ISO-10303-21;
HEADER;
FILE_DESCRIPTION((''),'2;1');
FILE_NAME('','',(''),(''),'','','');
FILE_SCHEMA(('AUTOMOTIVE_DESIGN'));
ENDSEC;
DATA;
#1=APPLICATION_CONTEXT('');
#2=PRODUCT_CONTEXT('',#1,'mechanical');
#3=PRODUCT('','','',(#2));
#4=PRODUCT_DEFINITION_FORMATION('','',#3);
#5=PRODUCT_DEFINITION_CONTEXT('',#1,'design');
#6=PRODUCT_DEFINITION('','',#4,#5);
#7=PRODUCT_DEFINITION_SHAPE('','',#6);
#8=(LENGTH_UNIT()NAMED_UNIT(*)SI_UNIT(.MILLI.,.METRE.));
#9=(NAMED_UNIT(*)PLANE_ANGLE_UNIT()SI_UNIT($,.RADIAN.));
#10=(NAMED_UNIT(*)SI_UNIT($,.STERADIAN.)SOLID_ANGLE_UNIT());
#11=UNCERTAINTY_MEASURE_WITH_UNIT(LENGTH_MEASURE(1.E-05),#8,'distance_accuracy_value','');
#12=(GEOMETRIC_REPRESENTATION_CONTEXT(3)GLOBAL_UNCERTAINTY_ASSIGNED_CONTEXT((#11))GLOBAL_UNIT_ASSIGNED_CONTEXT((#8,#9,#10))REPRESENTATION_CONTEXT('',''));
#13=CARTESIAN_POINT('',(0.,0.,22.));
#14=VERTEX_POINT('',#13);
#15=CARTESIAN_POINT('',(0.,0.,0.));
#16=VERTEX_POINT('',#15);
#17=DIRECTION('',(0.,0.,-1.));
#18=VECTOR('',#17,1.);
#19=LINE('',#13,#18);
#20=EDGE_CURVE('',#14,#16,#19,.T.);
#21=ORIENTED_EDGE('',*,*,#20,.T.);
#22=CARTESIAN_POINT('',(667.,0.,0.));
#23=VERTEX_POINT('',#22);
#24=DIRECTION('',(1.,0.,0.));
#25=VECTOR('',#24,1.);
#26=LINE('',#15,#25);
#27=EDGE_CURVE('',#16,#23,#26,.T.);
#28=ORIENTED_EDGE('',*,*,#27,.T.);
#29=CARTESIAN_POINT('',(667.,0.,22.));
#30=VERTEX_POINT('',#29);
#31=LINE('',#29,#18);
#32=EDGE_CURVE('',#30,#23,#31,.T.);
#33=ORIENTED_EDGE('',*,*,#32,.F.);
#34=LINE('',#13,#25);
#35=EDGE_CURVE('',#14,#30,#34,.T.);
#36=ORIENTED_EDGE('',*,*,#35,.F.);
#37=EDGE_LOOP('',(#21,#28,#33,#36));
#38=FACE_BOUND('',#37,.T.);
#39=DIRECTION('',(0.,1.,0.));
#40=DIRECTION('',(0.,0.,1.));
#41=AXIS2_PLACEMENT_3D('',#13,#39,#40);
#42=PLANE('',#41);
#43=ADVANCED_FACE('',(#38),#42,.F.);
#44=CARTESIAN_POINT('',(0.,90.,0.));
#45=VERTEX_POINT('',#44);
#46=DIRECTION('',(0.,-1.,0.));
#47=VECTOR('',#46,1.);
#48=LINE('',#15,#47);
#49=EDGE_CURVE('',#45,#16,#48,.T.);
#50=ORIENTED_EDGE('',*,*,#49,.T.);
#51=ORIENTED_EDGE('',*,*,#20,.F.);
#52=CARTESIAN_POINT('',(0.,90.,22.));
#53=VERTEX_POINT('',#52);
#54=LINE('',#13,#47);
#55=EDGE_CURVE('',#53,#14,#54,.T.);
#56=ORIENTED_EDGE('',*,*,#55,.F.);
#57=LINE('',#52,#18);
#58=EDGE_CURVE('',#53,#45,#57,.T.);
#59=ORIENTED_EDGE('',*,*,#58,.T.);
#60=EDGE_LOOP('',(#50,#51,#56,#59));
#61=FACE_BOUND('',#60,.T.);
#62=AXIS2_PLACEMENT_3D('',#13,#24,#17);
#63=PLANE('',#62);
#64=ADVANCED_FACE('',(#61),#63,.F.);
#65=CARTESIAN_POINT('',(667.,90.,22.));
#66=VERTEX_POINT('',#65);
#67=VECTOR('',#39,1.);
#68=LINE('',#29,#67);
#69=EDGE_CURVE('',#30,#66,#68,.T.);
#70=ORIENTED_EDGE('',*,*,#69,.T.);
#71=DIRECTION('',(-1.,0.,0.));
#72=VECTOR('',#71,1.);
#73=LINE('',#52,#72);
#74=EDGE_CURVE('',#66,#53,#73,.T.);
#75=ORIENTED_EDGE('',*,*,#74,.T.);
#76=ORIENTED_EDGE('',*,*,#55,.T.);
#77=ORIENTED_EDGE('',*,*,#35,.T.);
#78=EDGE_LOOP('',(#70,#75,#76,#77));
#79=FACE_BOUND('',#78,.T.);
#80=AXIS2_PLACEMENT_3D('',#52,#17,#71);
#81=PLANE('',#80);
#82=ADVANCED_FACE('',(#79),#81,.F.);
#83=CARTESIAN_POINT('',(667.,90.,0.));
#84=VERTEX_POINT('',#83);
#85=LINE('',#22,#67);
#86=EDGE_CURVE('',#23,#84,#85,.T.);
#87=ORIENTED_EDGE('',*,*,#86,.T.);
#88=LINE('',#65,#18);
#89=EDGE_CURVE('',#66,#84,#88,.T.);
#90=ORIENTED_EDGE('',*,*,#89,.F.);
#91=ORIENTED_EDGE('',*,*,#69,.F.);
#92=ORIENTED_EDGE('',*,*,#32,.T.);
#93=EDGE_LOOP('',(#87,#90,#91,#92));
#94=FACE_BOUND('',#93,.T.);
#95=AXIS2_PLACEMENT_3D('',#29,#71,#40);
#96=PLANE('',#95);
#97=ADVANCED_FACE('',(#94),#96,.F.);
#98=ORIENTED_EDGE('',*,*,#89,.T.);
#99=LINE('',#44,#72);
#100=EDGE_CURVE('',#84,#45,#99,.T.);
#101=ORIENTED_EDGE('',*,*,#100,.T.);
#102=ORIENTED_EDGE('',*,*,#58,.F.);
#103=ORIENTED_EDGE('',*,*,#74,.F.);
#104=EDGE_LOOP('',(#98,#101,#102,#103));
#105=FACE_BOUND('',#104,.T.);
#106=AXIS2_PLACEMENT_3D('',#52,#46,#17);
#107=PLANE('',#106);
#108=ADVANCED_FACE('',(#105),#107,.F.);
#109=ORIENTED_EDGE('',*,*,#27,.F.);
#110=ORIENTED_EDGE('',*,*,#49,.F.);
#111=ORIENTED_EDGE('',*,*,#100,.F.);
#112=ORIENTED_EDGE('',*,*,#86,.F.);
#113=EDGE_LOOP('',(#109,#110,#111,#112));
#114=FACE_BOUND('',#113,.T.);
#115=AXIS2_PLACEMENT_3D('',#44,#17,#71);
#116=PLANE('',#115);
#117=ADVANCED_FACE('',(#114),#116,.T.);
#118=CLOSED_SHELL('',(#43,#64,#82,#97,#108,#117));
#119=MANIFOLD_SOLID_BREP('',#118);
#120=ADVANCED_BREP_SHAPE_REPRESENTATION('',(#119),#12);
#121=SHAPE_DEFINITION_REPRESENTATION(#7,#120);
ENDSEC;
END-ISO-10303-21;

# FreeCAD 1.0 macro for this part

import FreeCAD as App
import Part
import Sketcher
from FreeCAD import Vector
Q = App.Units.Quantity


def add_polygon(sketch, points):
    """Adds a closed chain of lines whose ends are joined by coincident constraints."""
    first, n = sketch.GeometryCount, len(points)
    for a, b in zip(points, points[1:] + points[:1]):
        sketch.addGeometry(Part.LineSegment(App.Vector(*a, 0), App.Vector(*b, 0)), False)
    for i in range(n):
        sketch.addConstraint(Sketcher.Constraint("Coincident", first + i, 2, first + (i + 1) % n, 1))

doc = App.newDocument("Part")
params = doc.addObject("Spreadsheet::Sheet", "Params")
for row, (alias, value) in enumerate([
    ("sketch1_width", "667 mm"),
    ("sketch1_height", "90 mm"),
    ("pad1_length", "22 mm"),
], start=1):
    params.set(f"A{row}", alias)
    params.set(f"B{row}", "=" + value)
    params.setAlias(f"B{row}", alias)

body = doc.addObject("PartDesign::Body", "Body")

# Sketch on XY plane
sketch1 = body.newObject("Sketcher::SketchObject", "Sketch")
sketch1.AttachmentSupport = (doc.getObject("XY_Plane"), [""])
sketch1.MapMode = "FlatFace"
add_polygon(sketch1, [(0, 90), (0, 0), (667, 0), (667, 90)])  # lines 0-3
sketch1.addConstraint([
    Sketcher.Constraint("Vertical", 0),
    Sketcher.Constraint("Horizontal", 1),
    Sketcher.Constraint("Vertical", 2),
    Sketcher.Constraint("Horizontal", 3),
    Sketcher.Constraint("Coincident", 0, 2, -1, 1),
    Sketcher.Constraint("DistanceX", 1, 1, 1, 2, Q("667 mm")),
    Sketcher.Constraint("DistanceY", 0, 2, 0, 1, Q("90 mm")),
])
sketch1.setExpression("Constraints[9]", "Params.sketch1_width")
sketch1.setExpression("Constraints[10]", "Params.sketch1_height")
pad1 = body.newObject("PartDesign::Pad", "Pad")
pad1.Profile = sketch1
pad1.setExpression("Length", "Params.pad1_length")

doc.recompute()
